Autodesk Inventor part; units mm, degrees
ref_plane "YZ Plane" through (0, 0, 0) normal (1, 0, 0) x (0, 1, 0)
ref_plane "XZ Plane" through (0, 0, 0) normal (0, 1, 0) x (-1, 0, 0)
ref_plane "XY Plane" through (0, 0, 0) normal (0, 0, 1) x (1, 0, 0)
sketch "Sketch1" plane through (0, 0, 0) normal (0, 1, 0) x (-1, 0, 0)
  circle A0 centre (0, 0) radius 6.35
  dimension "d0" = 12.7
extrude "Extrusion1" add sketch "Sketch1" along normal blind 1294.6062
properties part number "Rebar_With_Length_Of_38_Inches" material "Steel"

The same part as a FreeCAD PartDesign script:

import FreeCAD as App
import Part
import Sketcher
Q = App.Units.Quantity

doc = App.newDocument("Part")
body = doc.addObject("PartDesign::Body", "Body")

# Sketch on XZ plane
sketch1 = body.newObject("Sketcher::SketchObject", "Sketch")
sketch1.AttachmentSupport = (doc.getObject("XZ_Plane"), [""])
sketch1.MapMode = "FlatFace"
sketch1.addGeometry(Part.Circle(App.Vector(0, 0, 0), App.Vector(0, 0, 1), 6), False)
sketch1.addConstraint(Sketcher.Constraint("Coincident", 0, 3, -1, 1))
sketch1.addConstraint(Sketcher.Constraint("Diameter", 0, Q("0.5 in")))
pad1 = body.newObject("PartDesign::Pad", "Pad")
pad1.Profile = sketch1
pad1.Length = Q("50.968748 in")
pad1.Reversed = True

doc.recompute()
